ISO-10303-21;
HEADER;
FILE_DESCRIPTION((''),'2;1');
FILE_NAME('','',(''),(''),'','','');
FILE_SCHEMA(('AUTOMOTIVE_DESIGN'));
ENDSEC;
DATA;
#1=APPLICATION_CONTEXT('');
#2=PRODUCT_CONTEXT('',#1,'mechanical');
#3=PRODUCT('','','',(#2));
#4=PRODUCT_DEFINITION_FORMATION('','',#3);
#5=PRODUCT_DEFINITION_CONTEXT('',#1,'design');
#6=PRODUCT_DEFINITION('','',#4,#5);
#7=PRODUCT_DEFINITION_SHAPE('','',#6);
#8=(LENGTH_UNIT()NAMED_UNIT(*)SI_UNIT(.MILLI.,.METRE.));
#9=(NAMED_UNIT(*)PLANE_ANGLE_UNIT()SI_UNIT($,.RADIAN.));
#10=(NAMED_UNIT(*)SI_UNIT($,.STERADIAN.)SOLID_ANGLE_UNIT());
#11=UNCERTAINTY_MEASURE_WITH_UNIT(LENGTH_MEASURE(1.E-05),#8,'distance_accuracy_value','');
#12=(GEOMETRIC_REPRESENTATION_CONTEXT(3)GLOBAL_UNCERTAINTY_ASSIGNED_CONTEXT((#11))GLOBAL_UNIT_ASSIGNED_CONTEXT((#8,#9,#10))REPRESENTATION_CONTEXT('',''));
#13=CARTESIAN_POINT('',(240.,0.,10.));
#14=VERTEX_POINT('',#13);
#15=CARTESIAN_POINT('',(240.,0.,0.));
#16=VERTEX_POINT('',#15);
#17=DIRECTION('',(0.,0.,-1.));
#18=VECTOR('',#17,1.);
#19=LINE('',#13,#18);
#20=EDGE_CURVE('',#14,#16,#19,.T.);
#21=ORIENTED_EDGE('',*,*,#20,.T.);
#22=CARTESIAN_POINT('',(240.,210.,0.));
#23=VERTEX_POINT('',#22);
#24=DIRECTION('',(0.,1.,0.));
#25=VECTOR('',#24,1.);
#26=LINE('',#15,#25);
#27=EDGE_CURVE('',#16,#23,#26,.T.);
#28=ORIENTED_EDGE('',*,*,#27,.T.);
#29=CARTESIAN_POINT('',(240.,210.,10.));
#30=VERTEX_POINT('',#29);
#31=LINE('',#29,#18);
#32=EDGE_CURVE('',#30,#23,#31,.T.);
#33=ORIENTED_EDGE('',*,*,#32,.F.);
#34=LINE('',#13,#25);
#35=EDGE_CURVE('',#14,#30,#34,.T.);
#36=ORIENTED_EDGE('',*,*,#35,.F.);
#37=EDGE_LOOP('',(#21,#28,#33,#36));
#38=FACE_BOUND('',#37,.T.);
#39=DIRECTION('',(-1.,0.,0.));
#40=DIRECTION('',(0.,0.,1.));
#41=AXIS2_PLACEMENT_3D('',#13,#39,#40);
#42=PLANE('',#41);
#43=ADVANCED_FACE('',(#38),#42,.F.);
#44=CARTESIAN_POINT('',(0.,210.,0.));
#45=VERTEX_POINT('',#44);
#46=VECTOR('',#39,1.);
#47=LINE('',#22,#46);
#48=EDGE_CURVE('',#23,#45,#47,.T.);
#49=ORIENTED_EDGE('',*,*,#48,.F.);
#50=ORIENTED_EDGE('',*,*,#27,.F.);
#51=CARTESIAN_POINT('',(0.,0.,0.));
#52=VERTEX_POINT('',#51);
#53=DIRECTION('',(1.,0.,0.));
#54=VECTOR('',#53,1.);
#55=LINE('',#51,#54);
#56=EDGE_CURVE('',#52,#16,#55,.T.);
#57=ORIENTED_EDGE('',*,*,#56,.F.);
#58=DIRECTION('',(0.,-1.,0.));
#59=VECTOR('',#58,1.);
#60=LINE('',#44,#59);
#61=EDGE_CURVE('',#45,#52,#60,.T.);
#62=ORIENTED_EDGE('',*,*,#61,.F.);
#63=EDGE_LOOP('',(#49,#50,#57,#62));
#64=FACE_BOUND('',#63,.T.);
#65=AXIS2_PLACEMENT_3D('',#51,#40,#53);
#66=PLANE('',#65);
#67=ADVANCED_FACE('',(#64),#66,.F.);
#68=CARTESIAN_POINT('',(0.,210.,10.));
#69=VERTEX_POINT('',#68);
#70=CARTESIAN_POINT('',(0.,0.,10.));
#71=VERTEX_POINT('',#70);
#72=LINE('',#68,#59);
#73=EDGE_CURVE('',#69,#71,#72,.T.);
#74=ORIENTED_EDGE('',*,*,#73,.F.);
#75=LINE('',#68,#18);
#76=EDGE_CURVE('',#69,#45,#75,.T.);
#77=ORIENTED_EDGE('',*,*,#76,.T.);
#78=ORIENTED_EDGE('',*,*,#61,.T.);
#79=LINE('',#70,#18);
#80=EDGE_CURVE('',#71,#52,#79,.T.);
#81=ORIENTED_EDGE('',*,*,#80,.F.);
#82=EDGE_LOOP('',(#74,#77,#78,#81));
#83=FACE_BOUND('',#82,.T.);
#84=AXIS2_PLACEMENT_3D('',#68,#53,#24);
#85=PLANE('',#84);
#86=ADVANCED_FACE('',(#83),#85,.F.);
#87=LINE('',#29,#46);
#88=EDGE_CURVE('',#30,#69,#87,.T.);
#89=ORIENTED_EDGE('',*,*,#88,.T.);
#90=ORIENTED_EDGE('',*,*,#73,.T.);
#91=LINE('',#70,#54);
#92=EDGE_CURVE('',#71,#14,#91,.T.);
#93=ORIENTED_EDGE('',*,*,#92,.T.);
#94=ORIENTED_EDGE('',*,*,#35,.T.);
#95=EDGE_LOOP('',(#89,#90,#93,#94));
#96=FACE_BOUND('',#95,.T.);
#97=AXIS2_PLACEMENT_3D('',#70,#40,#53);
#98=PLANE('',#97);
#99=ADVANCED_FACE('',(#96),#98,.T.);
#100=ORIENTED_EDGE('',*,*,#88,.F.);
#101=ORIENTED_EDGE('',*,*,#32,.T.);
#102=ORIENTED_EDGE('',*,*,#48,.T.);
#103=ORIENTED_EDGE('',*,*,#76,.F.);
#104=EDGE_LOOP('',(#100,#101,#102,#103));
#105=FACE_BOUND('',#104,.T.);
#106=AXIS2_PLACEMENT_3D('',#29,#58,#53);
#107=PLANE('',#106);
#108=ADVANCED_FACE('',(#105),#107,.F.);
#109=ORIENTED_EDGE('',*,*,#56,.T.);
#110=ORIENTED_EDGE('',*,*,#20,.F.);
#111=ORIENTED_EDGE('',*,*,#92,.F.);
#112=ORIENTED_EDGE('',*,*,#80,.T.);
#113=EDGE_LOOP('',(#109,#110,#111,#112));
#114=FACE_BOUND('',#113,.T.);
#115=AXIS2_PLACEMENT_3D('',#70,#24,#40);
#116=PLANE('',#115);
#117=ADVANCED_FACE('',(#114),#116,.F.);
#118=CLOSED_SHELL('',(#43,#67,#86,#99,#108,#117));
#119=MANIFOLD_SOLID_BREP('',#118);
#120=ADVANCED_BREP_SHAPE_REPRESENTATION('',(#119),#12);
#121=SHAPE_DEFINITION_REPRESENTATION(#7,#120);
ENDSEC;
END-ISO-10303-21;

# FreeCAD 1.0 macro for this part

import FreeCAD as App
import Part
import Sketcher

V = App.Vector
Q = App.Units.Quantity

doc = App.newDocument("Part")
params = doc.addObject("Spreadsheet::Sheet", "Params")
for row, (alias, value) in enumerate([
    ("sketch1_width", "240 mm"),
    ("sketch1_height", "210 mm"),
    ("pad1_length", "10 mm"),
], start=1):
    params.set(f"A{row}", alias)
    params.set(f"B{row}", "=" + value)
    params.setAlias(f"B{row}", alias)

body = doc.addObject("PartDesign::Body", "Body")

sketch1 = body.newObject("Sketcher::SketchObject", "Sketch")
sketch1.AttachmentSupport = (doc.getObject("XY_Plane"), [""])
sketch1.MapMode = "FlatFace"
sketch1.addGeometry(Part.LineSegment(V(0, 210, 0), V(0, 0, 0)), False)
sketch1.addGeometry(Part.LineSegment(V(0, 0, 0), V(240, 0, 0)), False)
sketch1.addGeometry(Part.LineSegment(V(240, 0, 0), V(240, 210, 0)), False)
sketch1.addGeometry(Part.LineSegment(V(240, 210, 0), V(0, 210, 0)), False)
sketch1.addConstraint(Sketcher.Constraint("Coincident", 0, 2, 1, 1))
sketch1.addConstraint(Sketcher.Constraint("Coincident", 1, 2, 2, 1))
sketch1.addConstraint(Sketcher.Constraint("Coincident", 2, 2, 3, 1))
sketch1.addConstraint(Sketcher.Constraint("Coincident", 3, 2, 0, 1))
sketch1.addConstraint(Sketcher.Constraint("Vertical", 0))
sketch1.addConstraint(Sketcher.Constraint("Horizontal", 1))
sketch1.addConstraint(Sketcher.Constraint("Vertical", 2))
sketch1.addConstraint(Sketcher.Constraint("Horizontal", 3))
sketch1.addConstraint(Sketcher.Constraint("Coincident", 0, 2, -1, 1))
sketch1.addConstraint(Sketcher.Constraint("DistanceX", 1, 1, 1, 2, Q("240 mm")))
sketch1.addConstraint(Sketcher.Constraint("DistanceY", 0, 2, 0, 1, Q("210 mm")))
sketch1.setExpression("Constraints[9]", "Params.sketch1_width")
sketch1.setExpression("Constraints[10]", "Params.sketch1_height")
pad1 = body.newObject("PartDesign::Pad", "Pad")
pad1.Profile = sketch1
pad1.setExpression("Length", "Params.pad1_length")

doc.recompute()
